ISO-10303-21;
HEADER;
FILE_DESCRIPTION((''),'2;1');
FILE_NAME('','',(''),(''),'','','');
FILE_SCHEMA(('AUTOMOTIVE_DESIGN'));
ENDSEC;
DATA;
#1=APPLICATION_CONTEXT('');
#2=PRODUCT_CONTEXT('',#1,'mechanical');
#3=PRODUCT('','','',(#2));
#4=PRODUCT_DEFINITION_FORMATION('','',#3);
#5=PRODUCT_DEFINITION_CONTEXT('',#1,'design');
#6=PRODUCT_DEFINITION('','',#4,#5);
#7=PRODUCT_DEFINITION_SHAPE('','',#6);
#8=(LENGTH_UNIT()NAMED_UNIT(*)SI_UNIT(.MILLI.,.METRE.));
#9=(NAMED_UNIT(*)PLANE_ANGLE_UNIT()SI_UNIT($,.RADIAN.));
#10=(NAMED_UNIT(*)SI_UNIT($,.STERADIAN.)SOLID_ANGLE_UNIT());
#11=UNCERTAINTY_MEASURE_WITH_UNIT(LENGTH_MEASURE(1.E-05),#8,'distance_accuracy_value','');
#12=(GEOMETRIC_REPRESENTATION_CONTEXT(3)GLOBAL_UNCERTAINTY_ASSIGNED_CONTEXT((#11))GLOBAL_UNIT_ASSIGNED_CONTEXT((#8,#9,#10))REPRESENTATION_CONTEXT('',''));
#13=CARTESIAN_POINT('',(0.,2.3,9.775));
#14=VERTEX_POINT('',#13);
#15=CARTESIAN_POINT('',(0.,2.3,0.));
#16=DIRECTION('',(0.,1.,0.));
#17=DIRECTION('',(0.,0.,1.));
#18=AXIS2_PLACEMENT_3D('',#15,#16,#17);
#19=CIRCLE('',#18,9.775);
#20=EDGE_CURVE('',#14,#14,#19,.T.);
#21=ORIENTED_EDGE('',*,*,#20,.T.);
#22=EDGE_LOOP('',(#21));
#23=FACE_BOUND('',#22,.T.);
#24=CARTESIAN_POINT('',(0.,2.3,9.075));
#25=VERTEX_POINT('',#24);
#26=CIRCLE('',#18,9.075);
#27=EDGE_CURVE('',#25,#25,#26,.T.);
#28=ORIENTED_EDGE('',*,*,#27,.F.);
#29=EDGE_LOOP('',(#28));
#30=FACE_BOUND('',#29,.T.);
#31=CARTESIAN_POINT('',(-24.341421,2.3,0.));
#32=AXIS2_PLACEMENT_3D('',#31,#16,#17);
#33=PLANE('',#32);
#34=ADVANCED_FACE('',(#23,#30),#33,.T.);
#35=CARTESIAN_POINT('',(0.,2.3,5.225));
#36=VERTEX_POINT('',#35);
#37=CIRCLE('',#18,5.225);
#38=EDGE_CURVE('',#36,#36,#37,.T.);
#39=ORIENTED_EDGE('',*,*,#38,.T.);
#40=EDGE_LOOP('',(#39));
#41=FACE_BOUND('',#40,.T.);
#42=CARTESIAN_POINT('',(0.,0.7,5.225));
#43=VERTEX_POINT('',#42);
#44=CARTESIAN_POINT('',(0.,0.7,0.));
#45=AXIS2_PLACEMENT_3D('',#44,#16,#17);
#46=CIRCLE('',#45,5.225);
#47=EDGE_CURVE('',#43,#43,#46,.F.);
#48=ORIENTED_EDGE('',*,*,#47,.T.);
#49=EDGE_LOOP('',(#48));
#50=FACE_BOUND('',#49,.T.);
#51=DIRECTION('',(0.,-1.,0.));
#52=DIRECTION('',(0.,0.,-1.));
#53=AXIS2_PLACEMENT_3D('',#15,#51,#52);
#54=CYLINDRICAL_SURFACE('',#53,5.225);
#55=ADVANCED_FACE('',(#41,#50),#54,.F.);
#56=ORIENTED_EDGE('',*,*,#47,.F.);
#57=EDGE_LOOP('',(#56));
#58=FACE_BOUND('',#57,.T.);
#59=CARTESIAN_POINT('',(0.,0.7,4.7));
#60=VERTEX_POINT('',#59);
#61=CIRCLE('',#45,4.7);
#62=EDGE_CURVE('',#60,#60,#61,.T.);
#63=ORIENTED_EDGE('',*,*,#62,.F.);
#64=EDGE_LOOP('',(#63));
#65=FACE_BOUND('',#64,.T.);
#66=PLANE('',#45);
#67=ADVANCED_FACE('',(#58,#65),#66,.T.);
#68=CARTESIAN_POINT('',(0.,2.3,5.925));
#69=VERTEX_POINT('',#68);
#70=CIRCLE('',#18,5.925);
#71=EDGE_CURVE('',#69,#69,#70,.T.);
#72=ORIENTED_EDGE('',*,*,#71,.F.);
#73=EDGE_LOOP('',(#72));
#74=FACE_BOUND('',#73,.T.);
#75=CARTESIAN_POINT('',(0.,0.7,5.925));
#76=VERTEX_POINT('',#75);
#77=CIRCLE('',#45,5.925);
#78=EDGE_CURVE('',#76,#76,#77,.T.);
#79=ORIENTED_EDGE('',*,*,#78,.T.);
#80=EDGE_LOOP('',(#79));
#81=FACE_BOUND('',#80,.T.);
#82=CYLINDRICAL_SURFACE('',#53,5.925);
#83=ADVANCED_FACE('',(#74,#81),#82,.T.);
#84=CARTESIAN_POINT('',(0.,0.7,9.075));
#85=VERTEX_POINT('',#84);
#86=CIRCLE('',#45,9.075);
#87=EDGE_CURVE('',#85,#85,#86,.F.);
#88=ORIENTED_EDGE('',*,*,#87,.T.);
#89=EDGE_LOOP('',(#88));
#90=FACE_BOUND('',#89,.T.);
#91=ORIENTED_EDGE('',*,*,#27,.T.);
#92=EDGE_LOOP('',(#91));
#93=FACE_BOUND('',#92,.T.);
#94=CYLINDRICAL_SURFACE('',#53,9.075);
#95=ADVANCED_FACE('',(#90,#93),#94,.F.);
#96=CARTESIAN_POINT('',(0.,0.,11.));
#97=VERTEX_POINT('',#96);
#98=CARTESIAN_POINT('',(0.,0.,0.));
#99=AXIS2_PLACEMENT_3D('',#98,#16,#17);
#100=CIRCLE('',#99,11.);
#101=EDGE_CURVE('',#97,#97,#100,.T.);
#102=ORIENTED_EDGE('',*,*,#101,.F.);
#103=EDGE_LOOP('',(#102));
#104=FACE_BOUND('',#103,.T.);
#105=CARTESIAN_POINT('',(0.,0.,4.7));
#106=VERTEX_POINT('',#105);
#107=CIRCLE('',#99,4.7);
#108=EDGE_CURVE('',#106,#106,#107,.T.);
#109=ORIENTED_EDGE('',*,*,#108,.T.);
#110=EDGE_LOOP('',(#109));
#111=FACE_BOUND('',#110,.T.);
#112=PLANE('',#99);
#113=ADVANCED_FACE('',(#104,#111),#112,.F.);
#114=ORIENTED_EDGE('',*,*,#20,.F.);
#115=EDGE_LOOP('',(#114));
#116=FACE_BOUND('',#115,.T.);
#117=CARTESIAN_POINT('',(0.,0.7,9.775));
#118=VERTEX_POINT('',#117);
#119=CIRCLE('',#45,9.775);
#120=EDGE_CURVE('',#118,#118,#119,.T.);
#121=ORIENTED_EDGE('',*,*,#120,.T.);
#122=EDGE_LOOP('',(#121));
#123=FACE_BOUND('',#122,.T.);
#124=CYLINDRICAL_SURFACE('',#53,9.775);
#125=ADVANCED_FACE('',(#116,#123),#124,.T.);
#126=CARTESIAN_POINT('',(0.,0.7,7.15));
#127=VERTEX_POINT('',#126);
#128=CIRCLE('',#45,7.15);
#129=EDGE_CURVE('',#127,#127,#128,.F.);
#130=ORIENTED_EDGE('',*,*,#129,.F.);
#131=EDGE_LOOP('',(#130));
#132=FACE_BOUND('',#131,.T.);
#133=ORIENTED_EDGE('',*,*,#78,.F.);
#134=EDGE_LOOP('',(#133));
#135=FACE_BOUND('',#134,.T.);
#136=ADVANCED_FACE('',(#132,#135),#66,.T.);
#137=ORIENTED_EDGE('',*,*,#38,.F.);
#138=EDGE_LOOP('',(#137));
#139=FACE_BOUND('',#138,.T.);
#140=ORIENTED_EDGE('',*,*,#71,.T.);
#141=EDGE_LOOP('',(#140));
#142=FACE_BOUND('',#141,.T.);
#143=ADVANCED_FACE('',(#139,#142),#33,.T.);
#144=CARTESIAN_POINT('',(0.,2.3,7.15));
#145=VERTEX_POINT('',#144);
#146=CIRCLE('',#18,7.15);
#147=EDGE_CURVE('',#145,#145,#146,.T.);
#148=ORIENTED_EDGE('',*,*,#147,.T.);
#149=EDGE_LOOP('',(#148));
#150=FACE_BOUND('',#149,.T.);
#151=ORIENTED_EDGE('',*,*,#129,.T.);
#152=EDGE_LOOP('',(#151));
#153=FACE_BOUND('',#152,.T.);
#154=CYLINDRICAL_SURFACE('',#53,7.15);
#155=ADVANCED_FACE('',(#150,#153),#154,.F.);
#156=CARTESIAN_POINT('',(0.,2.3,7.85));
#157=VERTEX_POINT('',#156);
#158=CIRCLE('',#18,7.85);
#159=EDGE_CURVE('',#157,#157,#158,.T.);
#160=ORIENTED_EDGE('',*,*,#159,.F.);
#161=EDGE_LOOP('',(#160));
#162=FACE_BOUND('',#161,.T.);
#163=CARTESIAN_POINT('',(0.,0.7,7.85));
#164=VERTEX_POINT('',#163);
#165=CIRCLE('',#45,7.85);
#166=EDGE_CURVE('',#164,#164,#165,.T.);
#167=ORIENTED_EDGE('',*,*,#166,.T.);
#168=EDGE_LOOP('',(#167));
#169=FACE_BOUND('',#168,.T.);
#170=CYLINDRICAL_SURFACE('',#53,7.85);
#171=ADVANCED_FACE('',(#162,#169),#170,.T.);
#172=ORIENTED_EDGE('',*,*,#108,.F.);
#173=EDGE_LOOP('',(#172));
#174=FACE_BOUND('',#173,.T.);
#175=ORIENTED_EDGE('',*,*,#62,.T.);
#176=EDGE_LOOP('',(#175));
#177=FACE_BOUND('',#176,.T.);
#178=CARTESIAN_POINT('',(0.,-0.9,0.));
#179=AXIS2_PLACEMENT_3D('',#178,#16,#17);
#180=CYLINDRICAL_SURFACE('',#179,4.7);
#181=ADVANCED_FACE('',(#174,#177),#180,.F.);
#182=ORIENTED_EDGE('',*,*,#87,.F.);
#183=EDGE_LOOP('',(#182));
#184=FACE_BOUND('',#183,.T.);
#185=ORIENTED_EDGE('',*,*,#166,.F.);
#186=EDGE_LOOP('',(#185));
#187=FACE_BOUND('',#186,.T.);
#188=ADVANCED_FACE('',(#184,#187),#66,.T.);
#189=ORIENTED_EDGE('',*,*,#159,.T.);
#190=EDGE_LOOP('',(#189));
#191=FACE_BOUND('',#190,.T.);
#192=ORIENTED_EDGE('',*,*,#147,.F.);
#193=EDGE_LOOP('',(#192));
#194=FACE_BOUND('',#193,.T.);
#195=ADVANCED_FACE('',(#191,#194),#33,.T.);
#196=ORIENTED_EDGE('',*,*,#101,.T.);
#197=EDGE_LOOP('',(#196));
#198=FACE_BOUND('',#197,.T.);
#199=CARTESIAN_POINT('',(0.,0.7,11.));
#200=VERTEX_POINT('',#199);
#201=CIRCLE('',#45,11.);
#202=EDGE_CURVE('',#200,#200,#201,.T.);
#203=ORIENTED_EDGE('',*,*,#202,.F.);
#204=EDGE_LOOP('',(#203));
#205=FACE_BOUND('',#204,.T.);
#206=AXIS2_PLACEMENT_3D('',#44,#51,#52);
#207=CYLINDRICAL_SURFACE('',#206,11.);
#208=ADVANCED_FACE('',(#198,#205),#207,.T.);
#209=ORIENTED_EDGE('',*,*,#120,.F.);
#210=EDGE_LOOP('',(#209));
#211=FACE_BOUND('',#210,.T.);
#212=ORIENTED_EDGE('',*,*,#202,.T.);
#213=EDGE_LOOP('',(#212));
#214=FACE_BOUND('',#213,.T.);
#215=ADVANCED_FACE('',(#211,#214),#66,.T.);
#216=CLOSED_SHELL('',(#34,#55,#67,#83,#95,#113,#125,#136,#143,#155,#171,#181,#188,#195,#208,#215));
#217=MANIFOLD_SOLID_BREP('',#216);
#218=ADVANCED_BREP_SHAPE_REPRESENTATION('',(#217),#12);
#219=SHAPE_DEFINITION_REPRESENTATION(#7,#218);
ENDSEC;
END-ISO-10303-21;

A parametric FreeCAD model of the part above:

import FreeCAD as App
import Part
import Sketcher
from FreeCAD import Vector
Q = App.Units.Quantity

doc = App.newDocument("Part")
body = doc.addObject("PartDesign::Body", "Body")

sketch1 = body.newObject("Sketcher::SketchObject", "Sketch")
sketch1.AttachmentSupport = (doc.getObject("XZ_Plane"), [""])
sketch1.MapMode = "FlatFace"
sketch1.addGeometry(Part.Circle(Vector(0, 0, 0), Vector(0, 0, 1), 11), False)
sketch1.addConstraint(Sketcher.Constraint("Coincident", 0, 3, -1, 1))
sketch1.addConstraint(Sketcher.Constraint("Diameter", 0, Q("22 mm")))
pad1 = body.newObject("PartDesign::Pad", "Pad")
pad1.Profile = sketch1
pad1.Length = 0.7
pad1.Reversed = True

sketch2 = body.newObject("Sketcher::SketchObject", "Sketch001")
sketch2.AttachmentSupport = (doc.getObject("XZ_Plane"), [""])
sketch2.MapMode = "FlatFace"
sketch2.AttachmentOffset = App.Placement(Vector(0, 0, -0.7), App.Rotation())
sketch2.addGeometry(Part.Circle(Vector(0, 0, 0), Vector(0, 0, 1), 9.775), False)
sketch2.addGeometry(Part.Circle(Vector(0, 0, 0), Vector(0, 0, 1), 9.075), False)
sketch2.addGeometry(Part.Circle(Vector(0, 0, 0), Vector(0, 0, 1), 7.85), False)
sketch2.addGeometry(Part.Circle(Vector(0, 0, 0), Vector(0, 0, 1), 7.15), False)
sketch2.addGeometry(Part.Circle(Vector(0, 0, 0), Vector(0, 0, 1), 5.925), False)
sketch2.addGeometry(Part.Circle(Vector(0, 0, 0), Vector(0, 0, 1), 5.225), False)
sketch2.addConstraint(Sketcher.Constraint("Coincident", 0, 3, -1, 1))
sketch2.addConstraint(Sketcher.Constraint("Coincident", 1, 3, -1, 1))
sketch2.addConstraint(Sketcher.Constraint("Coincident", 2, 3, -1, 1))
sketch2.addConstraint(Sketcher.Constraint("Coincident", 3, 3, -1, 1))
sketch2.addConstraint(Sketcher.Constraint("Coincident", 4, 3, -1, 1))
sketch2.addConstraint(Sketcher.Constraint("Coincident", 5, 3, -1, 1))
sketch2.addConstraint(Sketcher.Constraint("Diameter", 2, Q("15.7 mm")))
sketch2.addConstraint(Sketcher.Constraint("Diameter", 3, Q("14.3 mm")))
sketch2.addConstraint(Sketcher.Constraint("Diameter", 0, Q("19.55 mm")))
sketch2.addConstraint(Sketcher.Constraint("Diameter", 1, Q("18.15 mm")))
sketch2.addConstraint(Sketcher.Constraint("Diameter", 4, Q("11.85 mm")))
sketch2.addConstraint(Sketcher.Constraint("Diameter", 5, Q("10.45 mm")))
pad2 = body.newObject("PartDesign::Pad", "Pad001")
pad2.Profile = sketch2
pad2.Length = 1.6
pad2.Reversed = True

sketch3 = body.newObject("Sketcher::SketchObject", "Sketch002")
sketch3.AttachmentSupport = (doc.getObject("XZ_Plane"), [""])
sketch3.MapMode = "FlatFace"
sketch3.AttachmentOffset = App.Placement(Vector(0, 0, -0.7), App.Rotation())
sketch3.addGeometry(Part.Circle(Vector(0, 0, 0), Vector(0, 0, 1), 4.7), False)
sketch3.addConstraint(Sketcher.Constraint("Coincident", 0, 3, -1, 1))
sketch3.addConstraint(Sketcher.Constraint("Diameter", 0, Q("9.4 mm")))
pocket1 = body.newObject("PartDesign::Pocket", "Pocket")
pocket1.Profile = sketch3
pocket1.Length = 1.6
pocket1.Reversed = True

doc.recompute()
